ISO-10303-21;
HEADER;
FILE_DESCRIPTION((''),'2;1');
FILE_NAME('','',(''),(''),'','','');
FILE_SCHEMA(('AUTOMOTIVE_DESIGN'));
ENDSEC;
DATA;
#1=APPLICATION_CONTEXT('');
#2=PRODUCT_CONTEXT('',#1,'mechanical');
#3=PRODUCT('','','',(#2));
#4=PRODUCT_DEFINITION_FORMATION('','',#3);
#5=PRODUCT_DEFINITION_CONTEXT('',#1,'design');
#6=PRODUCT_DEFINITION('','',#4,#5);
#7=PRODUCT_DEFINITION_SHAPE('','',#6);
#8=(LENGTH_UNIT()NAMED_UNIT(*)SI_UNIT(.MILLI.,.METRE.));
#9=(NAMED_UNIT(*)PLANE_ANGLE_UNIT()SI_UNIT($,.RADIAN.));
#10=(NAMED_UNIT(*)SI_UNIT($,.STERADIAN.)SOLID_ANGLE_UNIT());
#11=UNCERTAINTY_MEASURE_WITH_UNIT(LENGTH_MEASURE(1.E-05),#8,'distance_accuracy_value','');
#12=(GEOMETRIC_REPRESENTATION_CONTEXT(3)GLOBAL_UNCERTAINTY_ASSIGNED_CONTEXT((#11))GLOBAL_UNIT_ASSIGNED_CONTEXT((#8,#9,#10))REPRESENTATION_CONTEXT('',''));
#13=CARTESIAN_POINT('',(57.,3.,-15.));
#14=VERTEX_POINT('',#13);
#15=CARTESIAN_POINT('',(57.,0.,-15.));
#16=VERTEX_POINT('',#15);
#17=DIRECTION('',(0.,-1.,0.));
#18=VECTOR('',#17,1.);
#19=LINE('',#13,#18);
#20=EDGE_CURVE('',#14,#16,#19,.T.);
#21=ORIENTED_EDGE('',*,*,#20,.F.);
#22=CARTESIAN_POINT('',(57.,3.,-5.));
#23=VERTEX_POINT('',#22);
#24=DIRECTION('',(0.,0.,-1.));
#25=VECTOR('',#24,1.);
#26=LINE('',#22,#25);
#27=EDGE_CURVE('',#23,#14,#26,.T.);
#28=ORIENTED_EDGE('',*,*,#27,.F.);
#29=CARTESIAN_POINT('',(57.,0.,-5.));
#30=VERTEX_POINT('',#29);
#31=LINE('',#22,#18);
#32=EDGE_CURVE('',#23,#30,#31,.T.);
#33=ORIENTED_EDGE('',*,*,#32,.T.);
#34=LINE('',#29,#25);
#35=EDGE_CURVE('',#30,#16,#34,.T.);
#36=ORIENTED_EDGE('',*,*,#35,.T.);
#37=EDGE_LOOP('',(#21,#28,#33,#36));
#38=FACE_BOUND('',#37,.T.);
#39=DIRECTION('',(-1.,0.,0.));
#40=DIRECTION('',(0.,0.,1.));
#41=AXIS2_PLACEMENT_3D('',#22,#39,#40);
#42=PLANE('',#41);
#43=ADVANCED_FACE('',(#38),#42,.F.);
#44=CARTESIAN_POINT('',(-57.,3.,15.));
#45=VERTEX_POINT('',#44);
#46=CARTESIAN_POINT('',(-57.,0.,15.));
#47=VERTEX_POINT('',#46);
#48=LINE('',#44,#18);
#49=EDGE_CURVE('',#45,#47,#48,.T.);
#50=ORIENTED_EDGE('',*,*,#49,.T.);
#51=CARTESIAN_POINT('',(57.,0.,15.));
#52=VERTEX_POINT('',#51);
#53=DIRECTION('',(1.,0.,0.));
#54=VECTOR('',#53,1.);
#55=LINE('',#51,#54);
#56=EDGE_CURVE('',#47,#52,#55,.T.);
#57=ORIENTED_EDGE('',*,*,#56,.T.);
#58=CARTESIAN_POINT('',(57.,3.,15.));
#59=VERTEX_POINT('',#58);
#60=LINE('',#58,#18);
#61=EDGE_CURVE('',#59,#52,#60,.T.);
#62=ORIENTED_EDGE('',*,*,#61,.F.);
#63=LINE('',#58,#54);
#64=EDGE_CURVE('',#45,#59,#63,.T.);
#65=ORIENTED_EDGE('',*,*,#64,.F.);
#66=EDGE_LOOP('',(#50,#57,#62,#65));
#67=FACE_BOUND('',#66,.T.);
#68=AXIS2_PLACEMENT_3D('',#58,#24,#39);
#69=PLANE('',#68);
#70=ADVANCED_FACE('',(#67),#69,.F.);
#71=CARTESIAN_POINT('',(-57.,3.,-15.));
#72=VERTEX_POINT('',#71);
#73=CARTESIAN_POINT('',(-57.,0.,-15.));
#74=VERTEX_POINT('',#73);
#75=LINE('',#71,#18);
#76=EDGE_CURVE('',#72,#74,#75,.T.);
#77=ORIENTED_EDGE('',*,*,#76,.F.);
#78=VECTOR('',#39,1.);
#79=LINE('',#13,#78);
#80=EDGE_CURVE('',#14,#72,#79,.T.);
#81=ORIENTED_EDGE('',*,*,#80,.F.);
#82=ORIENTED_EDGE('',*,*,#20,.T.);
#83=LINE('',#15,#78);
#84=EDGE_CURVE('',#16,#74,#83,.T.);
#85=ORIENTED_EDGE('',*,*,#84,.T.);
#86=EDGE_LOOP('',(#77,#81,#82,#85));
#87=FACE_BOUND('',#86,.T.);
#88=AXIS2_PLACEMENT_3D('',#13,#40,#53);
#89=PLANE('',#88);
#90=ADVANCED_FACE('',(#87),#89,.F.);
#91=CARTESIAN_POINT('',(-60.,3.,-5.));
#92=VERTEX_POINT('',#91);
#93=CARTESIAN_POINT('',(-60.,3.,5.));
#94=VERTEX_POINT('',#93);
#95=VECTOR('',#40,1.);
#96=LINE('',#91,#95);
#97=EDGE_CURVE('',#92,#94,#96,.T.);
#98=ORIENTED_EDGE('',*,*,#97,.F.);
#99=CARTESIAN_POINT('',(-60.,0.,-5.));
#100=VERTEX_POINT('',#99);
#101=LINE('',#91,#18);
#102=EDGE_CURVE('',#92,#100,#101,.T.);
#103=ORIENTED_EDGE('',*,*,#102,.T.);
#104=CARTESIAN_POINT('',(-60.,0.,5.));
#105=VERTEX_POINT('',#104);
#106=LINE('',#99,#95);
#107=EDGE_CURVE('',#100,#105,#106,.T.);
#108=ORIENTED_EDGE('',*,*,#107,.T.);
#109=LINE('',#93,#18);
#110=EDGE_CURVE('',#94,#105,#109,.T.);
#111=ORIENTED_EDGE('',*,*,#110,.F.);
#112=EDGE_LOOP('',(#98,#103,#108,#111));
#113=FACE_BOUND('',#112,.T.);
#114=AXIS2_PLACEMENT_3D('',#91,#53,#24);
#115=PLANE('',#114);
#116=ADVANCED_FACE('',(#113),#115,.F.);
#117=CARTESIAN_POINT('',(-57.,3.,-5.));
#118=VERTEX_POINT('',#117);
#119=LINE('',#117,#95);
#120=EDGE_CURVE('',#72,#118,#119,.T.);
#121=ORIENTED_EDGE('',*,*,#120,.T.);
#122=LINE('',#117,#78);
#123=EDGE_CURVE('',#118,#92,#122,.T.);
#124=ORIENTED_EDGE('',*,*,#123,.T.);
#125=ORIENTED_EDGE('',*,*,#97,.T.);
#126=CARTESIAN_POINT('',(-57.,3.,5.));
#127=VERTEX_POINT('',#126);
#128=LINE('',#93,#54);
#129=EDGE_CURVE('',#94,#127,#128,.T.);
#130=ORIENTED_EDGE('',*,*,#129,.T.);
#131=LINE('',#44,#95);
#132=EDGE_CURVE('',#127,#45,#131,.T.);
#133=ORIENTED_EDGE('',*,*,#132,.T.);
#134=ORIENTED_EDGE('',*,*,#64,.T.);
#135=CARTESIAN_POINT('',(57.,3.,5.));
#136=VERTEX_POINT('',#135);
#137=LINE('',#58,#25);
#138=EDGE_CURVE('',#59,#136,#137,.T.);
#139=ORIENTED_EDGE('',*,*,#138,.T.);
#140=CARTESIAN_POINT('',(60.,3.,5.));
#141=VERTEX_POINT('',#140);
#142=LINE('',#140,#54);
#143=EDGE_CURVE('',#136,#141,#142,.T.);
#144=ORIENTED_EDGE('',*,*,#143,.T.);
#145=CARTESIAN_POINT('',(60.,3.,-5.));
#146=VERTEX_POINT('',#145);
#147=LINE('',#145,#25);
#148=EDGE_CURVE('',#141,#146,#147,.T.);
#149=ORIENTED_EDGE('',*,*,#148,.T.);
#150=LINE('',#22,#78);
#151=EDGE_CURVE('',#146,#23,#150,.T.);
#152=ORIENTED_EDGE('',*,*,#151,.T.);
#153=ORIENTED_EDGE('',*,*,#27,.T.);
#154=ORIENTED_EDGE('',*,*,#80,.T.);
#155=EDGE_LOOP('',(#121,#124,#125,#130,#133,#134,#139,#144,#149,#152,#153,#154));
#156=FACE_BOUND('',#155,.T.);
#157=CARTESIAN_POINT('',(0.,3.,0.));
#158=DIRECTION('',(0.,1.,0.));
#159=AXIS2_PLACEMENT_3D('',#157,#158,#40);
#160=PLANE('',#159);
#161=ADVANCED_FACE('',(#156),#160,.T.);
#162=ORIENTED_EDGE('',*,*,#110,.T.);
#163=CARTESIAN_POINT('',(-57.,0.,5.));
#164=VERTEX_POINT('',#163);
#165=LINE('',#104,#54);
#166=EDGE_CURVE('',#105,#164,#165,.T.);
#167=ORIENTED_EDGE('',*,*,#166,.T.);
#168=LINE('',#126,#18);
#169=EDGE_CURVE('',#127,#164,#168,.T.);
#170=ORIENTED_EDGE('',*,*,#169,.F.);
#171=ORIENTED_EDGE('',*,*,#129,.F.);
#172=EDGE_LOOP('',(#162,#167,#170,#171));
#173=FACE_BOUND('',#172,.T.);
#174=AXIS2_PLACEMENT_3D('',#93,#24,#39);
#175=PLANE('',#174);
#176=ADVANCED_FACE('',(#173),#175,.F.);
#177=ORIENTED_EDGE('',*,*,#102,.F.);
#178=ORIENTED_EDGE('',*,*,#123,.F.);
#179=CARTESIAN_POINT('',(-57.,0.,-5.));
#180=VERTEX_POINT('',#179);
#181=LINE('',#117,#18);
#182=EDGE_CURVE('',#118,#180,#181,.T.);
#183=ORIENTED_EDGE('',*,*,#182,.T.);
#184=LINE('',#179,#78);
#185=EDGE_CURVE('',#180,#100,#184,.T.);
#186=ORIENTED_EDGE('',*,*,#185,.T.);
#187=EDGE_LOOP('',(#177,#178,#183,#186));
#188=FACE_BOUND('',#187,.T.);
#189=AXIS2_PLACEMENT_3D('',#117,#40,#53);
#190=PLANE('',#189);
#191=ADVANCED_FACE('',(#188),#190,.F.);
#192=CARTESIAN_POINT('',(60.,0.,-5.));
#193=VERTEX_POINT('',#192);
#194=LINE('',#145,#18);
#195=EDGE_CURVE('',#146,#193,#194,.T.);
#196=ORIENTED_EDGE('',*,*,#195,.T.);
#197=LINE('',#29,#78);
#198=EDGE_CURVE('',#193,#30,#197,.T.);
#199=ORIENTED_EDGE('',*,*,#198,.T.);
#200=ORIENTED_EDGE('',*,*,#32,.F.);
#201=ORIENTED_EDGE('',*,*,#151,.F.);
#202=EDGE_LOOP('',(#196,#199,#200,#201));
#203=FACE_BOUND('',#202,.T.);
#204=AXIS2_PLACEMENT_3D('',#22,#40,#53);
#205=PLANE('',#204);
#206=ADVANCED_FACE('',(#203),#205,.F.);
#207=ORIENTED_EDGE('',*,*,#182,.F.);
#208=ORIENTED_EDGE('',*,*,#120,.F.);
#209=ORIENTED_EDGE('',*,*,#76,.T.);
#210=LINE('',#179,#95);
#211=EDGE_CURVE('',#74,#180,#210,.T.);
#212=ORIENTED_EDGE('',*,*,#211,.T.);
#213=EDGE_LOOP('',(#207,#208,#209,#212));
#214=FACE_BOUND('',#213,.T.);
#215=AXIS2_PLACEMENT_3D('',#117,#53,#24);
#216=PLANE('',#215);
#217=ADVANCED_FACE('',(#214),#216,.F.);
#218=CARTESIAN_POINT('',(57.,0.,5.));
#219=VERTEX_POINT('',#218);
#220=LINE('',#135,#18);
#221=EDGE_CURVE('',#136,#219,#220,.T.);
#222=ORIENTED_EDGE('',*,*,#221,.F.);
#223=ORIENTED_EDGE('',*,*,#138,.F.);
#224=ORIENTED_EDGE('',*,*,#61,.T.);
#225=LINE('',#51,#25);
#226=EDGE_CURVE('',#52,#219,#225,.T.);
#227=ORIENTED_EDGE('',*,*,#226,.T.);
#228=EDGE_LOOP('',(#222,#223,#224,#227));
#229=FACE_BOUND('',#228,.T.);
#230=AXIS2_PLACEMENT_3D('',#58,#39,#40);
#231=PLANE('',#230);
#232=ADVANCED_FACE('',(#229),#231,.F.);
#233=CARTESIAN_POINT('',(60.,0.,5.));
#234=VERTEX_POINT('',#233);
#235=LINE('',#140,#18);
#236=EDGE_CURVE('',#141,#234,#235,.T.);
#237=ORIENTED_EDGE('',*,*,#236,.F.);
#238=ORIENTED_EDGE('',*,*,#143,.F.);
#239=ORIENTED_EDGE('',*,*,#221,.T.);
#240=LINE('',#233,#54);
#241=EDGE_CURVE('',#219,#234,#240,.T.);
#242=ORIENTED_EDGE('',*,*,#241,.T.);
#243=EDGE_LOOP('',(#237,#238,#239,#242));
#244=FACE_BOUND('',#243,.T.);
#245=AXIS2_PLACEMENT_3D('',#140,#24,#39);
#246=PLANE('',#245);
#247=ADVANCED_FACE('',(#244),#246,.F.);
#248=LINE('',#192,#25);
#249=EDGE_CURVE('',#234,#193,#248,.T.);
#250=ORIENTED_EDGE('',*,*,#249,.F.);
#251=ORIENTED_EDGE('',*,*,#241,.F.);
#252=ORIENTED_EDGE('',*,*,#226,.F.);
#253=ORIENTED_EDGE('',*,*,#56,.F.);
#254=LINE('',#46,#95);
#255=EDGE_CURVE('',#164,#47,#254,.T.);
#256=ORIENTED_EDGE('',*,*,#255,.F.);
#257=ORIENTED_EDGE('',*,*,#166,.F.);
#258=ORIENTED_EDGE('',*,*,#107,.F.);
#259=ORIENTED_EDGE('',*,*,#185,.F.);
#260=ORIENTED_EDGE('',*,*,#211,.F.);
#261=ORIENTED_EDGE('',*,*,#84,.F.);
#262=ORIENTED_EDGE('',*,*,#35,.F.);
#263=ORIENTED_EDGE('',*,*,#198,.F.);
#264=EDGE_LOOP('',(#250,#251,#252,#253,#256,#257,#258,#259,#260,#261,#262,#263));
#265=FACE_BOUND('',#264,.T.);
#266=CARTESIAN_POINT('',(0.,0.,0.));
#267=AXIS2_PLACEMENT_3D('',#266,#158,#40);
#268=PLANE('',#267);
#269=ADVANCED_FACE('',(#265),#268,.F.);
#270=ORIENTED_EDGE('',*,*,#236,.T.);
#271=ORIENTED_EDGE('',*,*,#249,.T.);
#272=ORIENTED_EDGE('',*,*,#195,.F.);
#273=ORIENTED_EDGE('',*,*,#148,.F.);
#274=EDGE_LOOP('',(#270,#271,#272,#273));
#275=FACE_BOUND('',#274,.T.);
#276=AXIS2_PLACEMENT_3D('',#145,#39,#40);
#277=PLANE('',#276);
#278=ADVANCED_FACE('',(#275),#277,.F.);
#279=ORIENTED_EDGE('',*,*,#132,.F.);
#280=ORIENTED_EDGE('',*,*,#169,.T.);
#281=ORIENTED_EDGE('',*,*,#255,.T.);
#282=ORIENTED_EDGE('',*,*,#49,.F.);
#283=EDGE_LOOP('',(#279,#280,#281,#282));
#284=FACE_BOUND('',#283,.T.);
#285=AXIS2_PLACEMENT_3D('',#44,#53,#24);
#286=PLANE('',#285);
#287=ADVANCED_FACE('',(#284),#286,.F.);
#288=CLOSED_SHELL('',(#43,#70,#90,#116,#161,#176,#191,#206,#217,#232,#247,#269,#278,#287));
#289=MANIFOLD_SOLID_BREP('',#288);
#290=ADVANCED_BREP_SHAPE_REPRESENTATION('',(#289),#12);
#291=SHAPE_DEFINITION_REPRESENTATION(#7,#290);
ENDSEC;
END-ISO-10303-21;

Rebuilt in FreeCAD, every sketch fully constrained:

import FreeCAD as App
import Part
import Sketcher
from FreeCAD import Vector
Q = App.Units.Quantity

doc = App.newDocument("Part")
body = doc.addObject("PartDesign::Body", "Body")

# Sketch on XZ plane
sketch1 = doc.addObject("Sketcher::SketchObject", "Sketch")
body.addObject(sketch1)
sketch1.AttachmentSupport = (doc.XZ_Plane, [""])
sketch1.MapMode = "FlatFace"
sketch1.addGeometry(Part.LineSegment(Vector(-57, -5, 0), Vector(-60, -5, 0)), False)
sketch1.addGeometry(Part.LineSegment(Vector(-60, -5, 0), Vector(-60, 5, 0)), False)
sketch1.addGeometry(Part.LineSegment(Vector(-60, 5, 0), Vector(-57, 5, 0)), False)
sketch1.addGeometry(Part.LineSegment(Vector(-57, 5, 0), Vector(-57, 15, 0)), False)
sketch1.addGeometry(Part.LineSegment(Vector(-57, 15, 0), Vector(57, 15, 0)), False)
sketch1.addGeometry(Part.LineSegment(Vector(57, 15, 0), Vector(57, 5, 0)), False)
sketch1.addGeometry(Part.LineSegment(Vector(57, 5, 0), Vector(60, 5, 0)), False)
sketch1.addGeometry(Part.LineSegment(Vector(60, 5, 0), Vector(60, -5, 0)), False)
sketch1.addGeometry(Part.LineSegment(Vector(60, -5, 0), Vector(57, -5, 0)), False)
sketch1.addGeometry(Part.LineSegment(Vector(57, -5, 0), Vector(57, -15, 0)), False)
sketch1.addGeometry(Part.LineSegment(Vector(57, -15, 0), Vector(-57, -15, 0)), False)
sketch1.addGeometry(Part.LineSegment(Vector(-57, -15, 0), Vector(-57, -5, 0)), False)
sketch1.addConstraint(Sketcher.Constraint("Coincident", 0, 2, 1, 1))
sketch1.addConstraint(Sketcher.Constraint("Coincident", 1, 2, 2, 1))
sketch1.addConstraint(Sketcher.Constraint("Coincident", 2, 2, 3, 1))
sketch1.addConstraint(Sketcher.Constraint("Coincident", 3, 2, 4, 1))
sketch1.addConstraint(Sketcher.Constraint("Coincident", 4, 2, 5, 1))
sketch1.addConstraint(Sketcher.Constraint("Coincident", 5, 2, 6, 1))
sketch1.addConstraint(Sketcher.Constraint("Coincident", 6, 2, 7, 1))
sketch1.addConstraint(Sketcher.Constraint("Coincident", 7, 2, 8, 1))
sketch1.addConstraint(Sketcher.Constraint("Coincident", 8, 2, 9, 1))
sketch1.addConstraint(Sketcher.Constraint("Coincident", 9, 2, 10, 1))
sketch1.addConstraint(Sketcher.Constraint("Coincident", 10, 2, 11, 1))
sketch1.addConstraint(Sketcher.Constraint("Coincident", 11, 2, 0, 1))
sketch1.addConstraint(Sketcher.Constraint("Horizontal", 0))
sketch1.addConstraint(Sketcher.Constraint("Vertical", 1))
sketch1.addConstraint(Sketcher.Constraint("Horizontal", 2))
sketch1.addConstraint(Sketcher.Constraint("Vertical", 3))
sketch1.addConstraint(Sketcher.Constraint("Horizontal", 4))
sketch1.addConstraint(Sketcher.Constraint("Vertical", 5))
sketch1.addConstraint(Sketcher.Constraint("Horizontal", 6))
sketch1.addConstraint(Sketcher.Constraint("Vertical", 7))
sketch1.addConstraint(Sketcher.Constraint("Horizontal", 8))
sketch1.addConstraint(Sketcher.Constraint("Vertical", 9))
sketch1.addConstraint(Sketcher.Constraint("Horizontal", 10))
sketch1.addConstraint(Sketcher.Constraint("Vertical", 11))
sketch1.addConstraint(Sketcher.Constraint("Symmetric", 0, 2, 6, 2, -1, 1))
sketch1.addConstraint(Sketcher.Constraint("Symmetric", 2, 2, 8, 2, -1, 1))
sketch1.addConstraint(Sketcher.Constraint("Symmetric", 4, 2, 10, 2, -1, 1))
sketch1.addConstraint(Sketcher.Constraint("Symmetric", 2, 2, 5, 2, -2))
sketch1.addConstraint(Sketcher.Constraint("Equal", 1, 3))
sketch1.addConstraint(Sketcher.Constraint("DistanceX", 0, 2, 0, 1, Q("3 mm")))
sketch1.addConstraint(Sketcher.Constraint("DistanceX", 4, 1, 4, 2, Q("114 mm")))
sketch1.addConstraint(Sketcher.Constraint("DistanceY", 1, 1, 1, 2, Q("10 mm")))
pad1 = doc.addObject("PartDesign::Pad", "Pad")
body.addObject(pad1)
pad1.Profile = sketch1
pad1.Length = 3
pad1.Reversed = True

doc.recompute()
